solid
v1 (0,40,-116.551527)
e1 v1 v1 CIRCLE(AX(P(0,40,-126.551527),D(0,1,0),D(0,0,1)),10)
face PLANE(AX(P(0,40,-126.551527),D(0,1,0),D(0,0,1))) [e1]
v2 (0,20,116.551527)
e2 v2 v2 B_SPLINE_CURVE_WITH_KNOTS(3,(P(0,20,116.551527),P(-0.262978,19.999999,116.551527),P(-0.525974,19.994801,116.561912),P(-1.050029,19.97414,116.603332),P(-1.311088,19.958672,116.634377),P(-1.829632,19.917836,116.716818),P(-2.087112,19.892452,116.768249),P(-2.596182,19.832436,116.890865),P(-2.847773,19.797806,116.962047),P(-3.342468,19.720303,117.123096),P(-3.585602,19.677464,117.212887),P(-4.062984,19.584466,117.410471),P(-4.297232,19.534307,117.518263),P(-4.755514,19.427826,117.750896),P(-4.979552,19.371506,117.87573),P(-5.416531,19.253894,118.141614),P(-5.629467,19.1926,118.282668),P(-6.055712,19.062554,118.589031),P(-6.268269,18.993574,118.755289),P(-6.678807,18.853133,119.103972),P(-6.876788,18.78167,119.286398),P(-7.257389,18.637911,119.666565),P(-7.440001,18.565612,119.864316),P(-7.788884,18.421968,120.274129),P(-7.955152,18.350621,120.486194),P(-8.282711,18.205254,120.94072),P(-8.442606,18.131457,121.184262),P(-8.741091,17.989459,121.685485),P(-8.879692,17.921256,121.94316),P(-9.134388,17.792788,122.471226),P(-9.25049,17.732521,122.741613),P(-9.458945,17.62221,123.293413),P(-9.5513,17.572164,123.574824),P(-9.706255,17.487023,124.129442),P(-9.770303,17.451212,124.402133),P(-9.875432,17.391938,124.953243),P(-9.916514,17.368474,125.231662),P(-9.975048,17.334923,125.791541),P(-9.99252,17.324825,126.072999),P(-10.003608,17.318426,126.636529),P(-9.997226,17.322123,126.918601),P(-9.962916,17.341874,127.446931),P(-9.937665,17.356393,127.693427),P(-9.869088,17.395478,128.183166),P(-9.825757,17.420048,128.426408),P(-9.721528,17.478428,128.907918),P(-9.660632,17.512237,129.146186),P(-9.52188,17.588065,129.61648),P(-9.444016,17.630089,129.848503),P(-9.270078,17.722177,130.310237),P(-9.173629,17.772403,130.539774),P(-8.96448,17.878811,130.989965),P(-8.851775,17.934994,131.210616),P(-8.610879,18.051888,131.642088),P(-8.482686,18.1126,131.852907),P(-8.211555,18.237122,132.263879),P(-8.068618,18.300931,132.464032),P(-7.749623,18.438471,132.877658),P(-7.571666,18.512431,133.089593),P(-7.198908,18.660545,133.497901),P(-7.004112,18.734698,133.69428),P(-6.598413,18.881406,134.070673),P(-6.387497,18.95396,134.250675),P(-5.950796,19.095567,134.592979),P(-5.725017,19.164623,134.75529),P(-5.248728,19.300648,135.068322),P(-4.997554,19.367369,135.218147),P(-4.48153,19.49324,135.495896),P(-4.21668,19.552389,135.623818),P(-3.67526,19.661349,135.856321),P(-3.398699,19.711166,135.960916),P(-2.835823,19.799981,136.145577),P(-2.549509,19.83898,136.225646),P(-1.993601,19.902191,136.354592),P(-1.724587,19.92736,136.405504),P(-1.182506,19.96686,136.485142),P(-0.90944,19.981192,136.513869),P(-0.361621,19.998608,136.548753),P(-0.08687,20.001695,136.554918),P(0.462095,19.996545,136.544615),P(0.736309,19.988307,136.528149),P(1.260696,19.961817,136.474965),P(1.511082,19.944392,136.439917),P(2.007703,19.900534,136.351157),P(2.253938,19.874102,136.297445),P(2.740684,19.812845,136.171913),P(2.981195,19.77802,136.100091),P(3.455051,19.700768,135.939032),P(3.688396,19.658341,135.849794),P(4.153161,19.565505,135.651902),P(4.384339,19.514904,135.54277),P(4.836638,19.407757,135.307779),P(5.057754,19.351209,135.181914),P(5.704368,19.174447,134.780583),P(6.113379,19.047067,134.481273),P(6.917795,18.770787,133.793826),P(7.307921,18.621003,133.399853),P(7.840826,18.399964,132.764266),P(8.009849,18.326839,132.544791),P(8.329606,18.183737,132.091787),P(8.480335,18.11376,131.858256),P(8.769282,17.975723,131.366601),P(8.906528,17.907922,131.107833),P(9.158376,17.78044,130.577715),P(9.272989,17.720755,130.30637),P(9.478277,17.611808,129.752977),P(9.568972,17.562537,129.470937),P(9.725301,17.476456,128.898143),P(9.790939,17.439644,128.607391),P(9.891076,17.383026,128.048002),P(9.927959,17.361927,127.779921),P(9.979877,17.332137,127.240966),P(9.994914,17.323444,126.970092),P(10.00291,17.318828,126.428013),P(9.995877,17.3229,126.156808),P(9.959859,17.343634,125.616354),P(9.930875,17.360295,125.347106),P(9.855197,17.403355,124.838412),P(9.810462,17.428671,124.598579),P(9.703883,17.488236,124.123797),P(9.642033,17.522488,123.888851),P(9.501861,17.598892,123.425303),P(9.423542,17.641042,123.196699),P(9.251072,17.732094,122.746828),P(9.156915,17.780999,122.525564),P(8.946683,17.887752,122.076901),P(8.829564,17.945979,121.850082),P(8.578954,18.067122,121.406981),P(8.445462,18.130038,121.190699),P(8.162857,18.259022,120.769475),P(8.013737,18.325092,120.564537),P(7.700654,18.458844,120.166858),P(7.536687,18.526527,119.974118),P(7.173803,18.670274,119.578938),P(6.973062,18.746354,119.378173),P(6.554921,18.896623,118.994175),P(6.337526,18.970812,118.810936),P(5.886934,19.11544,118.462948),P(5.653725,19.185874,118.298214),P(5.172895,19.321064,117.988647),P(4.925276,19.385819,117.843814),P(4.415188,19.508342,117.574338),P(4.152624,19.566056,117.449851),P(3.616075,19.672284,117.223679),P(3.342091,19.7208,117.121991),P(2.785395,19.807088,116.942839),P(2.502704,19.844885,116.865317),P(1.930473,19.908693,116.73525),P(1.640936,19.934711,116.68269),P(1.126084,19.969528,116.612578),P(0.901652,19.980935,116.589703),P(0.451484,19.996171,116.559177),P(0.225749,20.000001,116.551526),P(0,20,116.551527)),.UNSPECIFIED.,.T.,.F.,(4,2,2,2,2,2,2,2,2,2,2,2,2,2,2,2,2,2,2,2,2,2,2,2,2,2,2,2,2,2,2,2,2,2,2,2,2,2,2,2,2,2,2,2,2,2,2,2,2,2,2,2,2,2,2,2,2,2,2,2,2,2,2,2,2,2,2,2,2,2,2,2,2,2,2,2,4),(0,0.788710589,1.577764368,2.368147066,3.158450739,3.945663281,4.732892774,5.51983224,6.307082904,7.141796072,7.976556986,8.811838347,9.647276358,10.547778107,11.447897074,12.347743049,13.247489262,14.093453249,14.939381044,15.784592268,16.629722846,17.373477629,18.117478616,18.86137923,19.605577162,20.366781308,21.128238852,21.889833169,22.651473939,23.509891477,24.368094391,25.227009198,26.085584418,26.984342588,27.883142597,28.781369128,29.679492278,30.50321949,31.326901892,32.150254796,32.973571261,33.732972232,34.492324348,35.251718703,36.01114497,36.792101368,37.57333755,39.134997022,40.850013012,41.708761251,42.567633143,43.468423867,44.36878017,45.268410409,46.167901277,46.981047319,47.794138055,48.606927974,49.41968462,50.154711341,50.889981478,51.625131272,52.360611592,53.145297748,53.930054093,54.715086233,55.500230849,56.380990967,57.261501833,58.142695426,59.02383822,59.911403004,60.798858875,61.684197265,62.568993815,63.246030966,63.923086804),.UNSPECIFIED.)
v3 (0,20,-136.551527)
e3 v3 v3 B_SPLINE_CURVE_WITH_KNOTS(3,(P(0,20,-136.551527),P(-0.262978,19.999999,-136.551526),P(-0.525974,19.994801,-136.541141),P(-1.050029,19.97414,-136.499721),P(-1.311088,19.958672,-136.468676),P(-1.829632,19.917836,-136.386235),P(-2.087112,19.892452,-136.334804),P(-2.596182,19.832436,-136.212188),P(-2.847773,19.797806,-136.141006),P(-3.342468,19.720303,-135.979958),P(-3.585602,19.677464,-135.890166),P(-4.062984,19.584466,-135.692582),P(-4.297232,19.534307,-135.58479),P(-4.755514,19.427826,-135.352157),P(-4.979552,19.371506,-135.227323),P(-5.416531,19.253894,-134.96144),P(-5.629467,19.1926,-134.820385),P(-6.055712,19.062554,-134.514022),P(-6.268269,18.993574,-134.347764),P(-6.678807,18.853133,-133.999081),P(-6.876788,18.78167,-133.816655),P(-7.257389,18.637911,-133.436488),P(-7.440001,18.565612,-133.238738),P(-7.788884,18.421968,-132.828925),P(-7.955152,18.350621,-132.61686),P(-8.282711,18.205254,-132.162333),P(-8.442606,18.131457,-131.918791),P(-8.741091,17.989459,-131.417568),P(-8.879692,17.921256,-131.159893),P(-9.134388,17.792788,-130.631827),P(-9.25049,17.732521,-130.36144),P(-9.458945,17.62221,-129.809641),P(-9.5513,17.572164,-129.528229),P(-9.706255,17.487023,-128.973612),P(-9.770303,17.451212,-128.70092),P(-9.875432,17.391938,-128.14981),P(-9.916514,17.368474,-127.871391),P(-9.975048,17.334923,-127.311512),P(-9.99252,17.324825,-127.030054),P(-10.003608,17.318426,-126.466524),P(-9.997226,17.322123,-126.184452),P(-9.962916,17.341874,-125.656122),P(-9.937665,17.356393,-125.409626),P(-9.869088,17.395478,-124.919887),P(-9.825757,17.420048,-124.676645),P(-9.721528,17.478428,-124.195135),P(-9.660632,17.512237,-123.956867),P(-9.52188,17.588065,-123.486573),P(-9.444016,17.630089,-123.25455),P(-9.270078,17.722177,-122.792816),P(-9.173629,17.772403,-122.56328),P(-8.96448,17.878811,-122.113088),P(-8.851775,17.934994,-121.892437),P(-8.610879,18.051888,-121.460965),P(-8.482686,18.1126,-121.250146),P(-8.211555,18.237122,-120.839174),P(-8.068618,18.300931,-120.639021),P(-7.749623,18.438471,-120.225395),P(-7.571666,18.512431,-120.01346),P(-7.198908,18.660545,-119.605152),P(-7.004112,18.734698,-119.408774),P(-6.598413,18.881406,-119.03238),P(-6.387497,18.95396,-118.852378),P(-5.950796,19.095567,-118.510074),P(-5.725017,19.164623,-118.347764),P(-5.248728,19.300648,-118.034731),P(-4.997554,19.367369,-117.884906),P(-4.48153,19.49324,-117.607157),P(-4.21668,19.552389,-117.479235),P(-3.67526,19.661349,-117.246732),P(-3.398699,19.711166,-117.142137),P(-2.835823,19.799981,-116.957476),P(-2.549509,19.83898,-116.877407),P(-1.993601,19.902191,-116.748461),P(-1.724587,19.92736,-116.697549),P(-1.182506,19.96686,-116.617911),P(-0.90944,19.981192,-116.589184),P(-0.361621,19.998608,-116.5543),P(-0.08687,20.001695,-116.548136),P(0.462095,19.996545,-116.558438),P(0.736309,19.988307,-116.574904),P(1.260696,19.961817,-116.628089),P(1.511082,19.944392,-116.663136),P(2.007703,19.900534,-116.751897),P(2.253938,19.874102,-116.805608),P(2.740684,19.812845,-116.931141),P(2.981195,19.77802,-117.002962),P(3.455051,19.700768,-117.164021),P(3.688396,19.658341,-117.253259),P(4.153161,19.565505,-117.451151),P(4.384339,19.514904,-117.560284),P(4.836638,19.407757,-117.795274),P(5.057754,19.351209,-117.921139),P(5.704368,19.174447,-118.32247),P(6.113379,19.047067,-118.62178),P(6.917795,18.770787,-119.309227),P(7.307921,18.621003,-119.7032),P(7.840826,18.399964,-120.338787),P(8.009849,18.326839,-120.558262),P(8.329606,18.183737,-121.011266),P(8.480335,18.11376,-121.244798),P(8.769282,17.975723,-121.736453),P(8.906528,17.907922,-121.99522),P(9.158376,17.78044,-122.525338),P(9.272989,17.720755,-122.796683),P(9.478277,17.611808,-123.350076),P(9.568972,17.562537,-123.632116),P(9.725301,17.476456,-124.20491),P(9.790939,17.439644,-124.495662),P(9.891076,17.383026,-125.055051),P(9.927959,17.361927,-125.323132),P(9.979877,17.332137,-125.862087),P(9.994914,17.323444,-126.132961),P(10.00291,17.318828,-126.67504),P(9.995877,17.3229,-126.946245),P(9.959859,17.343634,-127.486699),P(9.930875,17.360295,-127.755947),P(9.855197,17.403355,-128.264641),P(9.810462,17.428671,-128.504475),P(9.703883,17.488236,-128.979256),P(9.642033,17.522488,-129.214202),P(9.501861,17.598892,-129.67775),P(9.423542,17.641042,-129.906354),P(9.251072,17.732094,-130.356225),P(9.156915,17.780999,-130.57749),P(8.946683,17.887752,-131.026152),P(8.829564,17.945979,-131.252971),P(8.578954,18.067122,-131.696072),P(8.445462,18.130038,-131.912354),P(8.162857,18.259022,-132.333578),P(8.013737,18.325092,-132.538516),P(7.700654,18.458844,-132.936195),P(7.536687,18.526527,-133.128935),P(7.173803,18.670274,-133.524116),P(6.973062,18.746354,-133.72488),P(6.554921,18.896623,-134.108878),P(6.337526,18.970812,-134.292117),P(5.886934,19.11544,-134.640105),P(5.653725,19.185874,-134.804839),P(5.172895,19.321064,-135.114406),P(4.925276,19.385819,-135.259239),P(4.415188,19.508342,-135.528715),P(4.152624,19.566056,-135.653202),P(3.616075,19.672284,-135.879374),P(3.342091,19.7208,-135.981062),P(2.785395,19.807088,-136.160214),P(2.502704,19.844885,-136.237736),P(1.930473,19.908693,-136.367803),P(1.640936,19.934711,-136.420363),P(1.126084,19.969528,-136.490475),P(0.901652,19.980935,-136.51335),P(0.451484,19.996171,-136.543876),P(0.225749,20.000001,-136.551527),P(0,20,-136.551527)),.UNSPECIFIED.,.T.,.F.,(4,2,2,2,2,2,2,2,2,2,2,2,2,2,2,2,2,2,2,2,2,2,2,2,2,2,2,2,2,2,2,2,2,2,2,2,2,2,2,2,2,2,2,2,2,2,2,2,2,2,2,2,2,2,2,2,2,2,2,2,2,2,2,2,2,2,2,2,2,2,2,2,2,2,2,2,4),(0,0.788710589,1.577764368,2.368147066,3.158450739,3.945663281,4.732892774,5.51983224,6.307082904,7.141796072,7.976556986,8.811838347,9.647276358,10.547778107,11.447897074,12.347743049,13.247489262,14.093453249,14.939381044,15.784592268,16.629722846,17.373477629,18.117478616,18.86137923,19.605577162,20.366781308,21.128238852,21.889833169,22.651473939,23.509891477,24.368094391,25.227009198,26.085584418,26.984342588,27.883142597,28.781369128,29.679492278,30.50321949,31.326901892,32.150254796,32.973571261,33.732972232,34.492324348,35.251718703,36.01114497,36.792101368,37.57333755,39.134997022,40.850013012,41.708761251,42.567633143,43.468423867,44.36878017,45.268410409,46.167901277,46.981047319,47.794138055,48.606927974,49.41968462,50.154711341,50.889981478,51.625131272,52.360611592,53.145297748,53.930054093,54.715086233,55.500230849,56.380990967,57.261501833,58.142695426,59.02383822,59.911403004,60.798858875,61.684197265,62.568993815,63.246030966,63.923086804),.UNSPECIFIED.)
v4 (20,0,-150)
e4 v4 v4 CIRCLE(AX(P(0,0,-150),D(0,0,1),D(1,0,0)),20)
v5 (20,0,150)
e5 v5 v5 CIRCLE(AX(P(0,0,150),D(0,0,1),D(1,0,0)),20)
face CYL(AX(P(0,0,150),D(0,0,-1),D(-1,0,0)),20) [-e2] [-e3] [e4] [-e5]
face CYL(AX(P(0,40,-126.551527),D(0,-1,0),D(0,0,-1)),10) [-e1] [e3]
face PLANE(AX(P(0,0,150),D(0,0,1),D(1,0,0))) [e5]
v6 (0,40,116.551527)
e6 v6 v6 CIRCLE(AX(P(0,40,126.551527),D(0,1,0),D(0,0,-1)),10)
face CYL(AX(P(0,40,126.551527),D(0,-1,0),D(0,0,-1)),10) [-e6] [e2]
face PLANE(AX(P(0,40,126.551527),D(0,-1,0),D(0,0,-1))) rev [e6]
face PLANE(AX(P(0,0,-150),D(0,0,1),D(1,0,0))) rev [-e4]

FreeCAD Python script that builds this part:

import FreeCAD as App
import Part
import Sketcher

doc = App.newDocument("Part")
body = doc.addObject("PartDesign::Body", "Body")

# Sketch on XY plane
sketch1 = body.newObject("Sketcher::SketchObject", "Sketch")
sketch1.AttachmentSupport = (doc.getObject("XY_Plane"), [""])
sketch1.MapMode = "FlatFace"
sketch1.addGeometry(Part.Circle(App.Vector(0, 0, 0), App.Vector(0, 0, 1), 20), False)
sketch1.addConstraint([
    Sketcher.Constraint("Coincident", 0, 3, -1, 1),
    Sketcher.Constraint("Diameter", 0, 40.0),
])
pad1 = body.newObject("PartDesign::Pad", "Pad")
pad1.Profile = sketch1
pad1.Length = 300
pad1.Midplane = True

# Sketch on XZ plane
sketch2 = body.newObject("Sketcher::SketchObject", "Sketch001")
sketch2.AttachmentSupport = (doc.getObject("XZ_Plane"), [""])
sketch2.MapMode = "FlatFace"
sketch2.addGeometry([
    Part.Circle(App.Vector(0, -126.551527, 0), App.Vector(0, 0, 1), 10),
    Part.Circle(App.Vector(0, 126.551527, 0), App.Vector(0, 0, 1), 10),
], False)
sketch2.addConstraint([
    Sketcher.Constraint("Equal", 0, 1),
    Sketcher.Constraint("Symmetric", 0, 3, 1, 3, -1, 1),
    Sketcher.Constraint("PointOnObject", 0, 3, -2),
    Sketcher.Constraint("Diameter", 0, 20.0),
    Sketcher.Constraint("DistanceY", 0, 3, -1, 1, 126.551527),
])
pad2 = body.newObject("PartDesign::Pad", "Pad001")
pad2.Profile = sketch2
pad2.Length = 40
pad2.Reversed = True

doc.recompute()
